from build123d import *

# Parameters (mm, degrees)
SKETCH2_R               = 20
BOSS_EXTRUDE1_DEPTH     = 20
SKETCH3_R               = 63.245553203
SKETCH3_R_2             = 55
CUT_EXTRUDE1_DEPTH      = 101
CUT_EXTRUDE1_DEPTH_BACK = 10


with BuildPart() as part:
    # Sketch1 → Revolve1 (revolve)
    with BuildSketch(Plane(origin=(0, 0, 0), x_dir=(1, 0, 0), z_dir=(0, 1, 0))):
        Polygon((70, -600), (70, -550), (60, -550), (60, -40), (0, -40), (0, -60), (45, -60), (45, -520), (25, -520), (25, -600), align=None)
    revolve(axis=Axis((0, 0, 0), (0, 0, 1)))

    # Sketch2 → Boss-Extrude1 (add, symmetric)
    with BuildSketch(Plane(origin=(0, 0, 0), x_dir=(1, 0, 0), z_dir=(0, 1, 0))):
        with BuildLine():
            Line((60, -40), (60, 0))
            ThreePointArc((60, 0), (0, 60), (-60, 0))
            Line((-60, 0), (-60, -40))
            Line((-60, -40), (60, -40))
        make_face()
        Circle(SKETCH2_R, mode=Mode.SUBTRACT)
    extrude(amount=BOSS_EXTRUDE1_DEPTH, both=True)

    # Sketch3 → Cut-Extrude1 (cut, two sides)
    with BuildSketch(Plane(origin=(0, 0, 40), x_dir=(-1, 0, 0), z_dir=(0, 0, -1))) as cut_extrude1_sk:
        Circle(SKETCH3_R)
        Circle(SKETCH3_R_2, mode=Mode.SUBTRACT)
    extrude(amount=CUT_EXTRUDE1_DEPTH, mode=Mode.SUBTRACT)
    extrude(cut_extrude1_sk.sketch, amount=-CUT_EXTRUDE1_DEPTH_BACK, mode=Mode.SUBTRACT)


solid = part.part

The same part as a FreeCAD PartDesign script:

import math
import FreeCAD as App
import Part
import Sketcher

V = App.Vector

doc = App.newDocument("Part")
params = doc.addObject("Spreadsheet::Sheet", "Params")
for row, (alias, value) in enumerate([
    ("sketch1_width", "10 mm"),
    ("sketch1_width2", "60 mm"),
    ("sketch1_width3", "45 mm"),
    ("sketch1_height", "50 mm"),
    ("sketch1_height2", "510 mm"),
    ("revolution_angle", "360 deg"),
    ("sketch2_diameter", "40 mm"),
    ("sketch2_radius", "60 mm"),
    ("sketch2_height", "40 mm"),
    ("pad1_length", "40 mm"),
    ("sketch3_diameter", "110 mm"),
    ("pocket1_length", "101 mm"),
    ("pocket1_length2", "10 mm"),
], start=1):
    params.set(f"A{row}", alias)
    params.set(f"B{row}", "=" + value)
    params.setAlias(f"B{row}", alias)

body = doc.addObject("PartDesign::Body", "Body")

# Sketch on XZ plane
sketch1 = body.newObject("Sketcher::SketchObject", "Sketch")
sketch1.AttachmentSupport = (doc.getObject("XZ_Plane"), [""])
sketch1.MapMode = "FlatFace"
sketch1.addGeometry([
    Part.LineSegment(V(70, 600, 0), V(70, 550, 0)),  # 0
    Part.LineSegment(V(70, 550, 0), V(60, 550, 0)),  # 1
    Part.LineSegment(V(60, 550, 0), V(60, 40, 0)),  # 2
    Part.LineSegment(V(60, 40, 0), V(0, 40, 0)),  # 3
    Part.LineSegment(V(0, 40, 0), V(0, 60, 0)),  # 4
    Part.LineSegment(V(0, 60, 0), V(45, 60, 0)),  # 5
    Part.LineSegment(V(45, 60, 0), V(45, 520, 0)),  # 6
    Part.LineSegment(V(45, 520, 0), V(25, 520, 0)),  # 7
    Part.LineSegment(V(25, 520, 0), V(25, 600, 0)),  # 8
    Part.LineSegment(V(25, 600, 0), V(70, 600, 0)),  # 9
], False)
sketch1.addConstraint([
    Sketcher.Constraint("Coincident", 0, 2, 1, 1),
    Sketcher.Constraint("Coincident", 1, 2, 2, 1),
    Sketcher.Constraint("Coincident", 2, 2, 3, 1),
    Sketcher.Constraint("Coincident", 3, 2, 4, 1),
    Sketcher.Constraint("Coincident", 4, 2, 5, 1),
    Sketcher.Constraint("Coincident", 5, 2, 6, 1),
    Sketcher.Constraint("Coincident", 6, 2, 7, 1),
    Sketcher.Constraint("Coincident", 7, 2, 8, 1),
    Sketcher.Constraint("Coincident", 8, 2, 9, 1),
    Sketcher.Constraint("Coincident", 9, 2, 0, 1),
    Sketcher.Constraint("Vertical", 0),
    Sketcher.Constraint("Horizontal", 1),
    Sketcher.Constraint("Vertical", 2),
    Sketcher.Constraint("Horizontal", 3),
    Sketcher.Constraint("Vertical", 4),
    Sketcher.Constraint("Horizontal", 5),
    Sketcher.Constraint("Vertical", 6),
    Sketcher.Constraint("Horizontal", 7),
    Sketcher.Constraint("Vertical", 8),
    Sketcher.Constraint("Horizontal", 9),
    Sketcher.Constraint("PointOnObject", 3, 2, -2),
    Sketcher.Constraint("Equal", 5, 9),
    Sketcher.Constraint("Equal", 7, 4),
    Sketcher.Constraint("DistanceX", 1, 2, 1, 1, 10.0),
    Sketcher.Constraint("DistanceX", 3, 2, 3, 1, 60.0),
    Sketcher.Constraint("DistanceX", 5, 1, 5, 2, 45.0),
    Sketcher.Constraint("DistanceY", 0, 2, 0, 1, 50.0),
    Sketcher.Constraint("DistanceY", 2, 2, 2, 1, 510.0),
    Sketcher.Constraint("DistanceY", 6, 1, 6, 2, 460.0),
    Sketcher.Constraint("DistanceY", -1, 1, 0, 2, 550.0),
])
sketch1.setExpression("Constraints[23]", "Params.sketch1_width")
sketch1.setExpression("Constraints[24]", "Params.sketch1_width2")
sketch1.setExpression("Constraints[25]", "Params.sketch1_width3")
sketch1.setExpression("Constraints[26]", "Params.sketch1_height")
sketch1.setExpression("Constraints[27]", "Params.sketch1_height2")
revolution = body.newObject("PartDesign::Revolution", "Revolution")
revolution.Profile = sketch1
revolution.ReferenceAxis = (sketch1, ["V_Axis"])
revolution.setExpression("Angle", "Params.revolution_angle")

# Sketch on XZ plane
sketch2 = body.newObject("Sketcher::SketchObject", "Sketch001")
sketch2.AttachmentSupport = (doc.getObject("XZ_Plane"), [""])
sketch2.MapMode = "FlatFace"
sketch2.addGeometry([
    Part.LineSegment(V(60, 40, 0), V(60, 0, 0)),  # 0
    Part.ArcOfCircle(Part.Circle(V(0, 0, 0), V(0, 0, 1), 60), math.radians(180), math.radians(360)),  # 1
    Part.LineSegment(V(-60, 0, 0), V(-60, 40, 0)),  # 2
    Part.LineSegment(V(-60, 40, 0), V(60, 40, 0)),  # 3
    Part.Circle(V(0, 0, 0), V(0, 0, 1), 20),  # 4
], False)
sketch2.addConstraint([
    Sketcher.Constraint("Tangent", 0, 2, 1, 2),
    Sketcher.Constraint("Tangent", 1, 1, 2, 1),
    Sketcher.Constraint("Coincident", 2, 2, 3, 1),
    Sketcher.Constraint("Coincident", 3, 2, 0, 1),
    Sketcher.Constraint("Vertical", 0),
    Sketcher.Constraint("Vertical", 2),
    Sketcher.Constraint("Horizontal", 3),
    Sketcher.Constraint("Coincident", 1, 3, -1, 1),
    Sketcher.Constraint("Coincident", 4, 3, -1, 1),
    Sketcher.Constraint("Diameter", 4, 40.0),
    Sketcher.Constraint("Radius", 1, 60.0),
    Sketcher.Constraint("DistanceY", 0, 2, 0, 1, 40.0),
])
sketch2.setExpression("Constraints[9]", "Params.sketch2_diameter")
sketch2.setExpression("Constraints[10]", "Params.sketch2_radius")
sketch2.setExpression("Constraints[11]", "Params.sketch2_height")
pad1 = body.newObject("PartDesign::Pad", "Pad")
pad1.Profile = sketch2
pad1.setExpression("Length", "Params.pad1_length")
pad1.Midplane = True

# Sketch on XY plane
sketch3 = body.newObject("Sketcher::SketchObject", "Sketch002")
sketch3.AttachmentSupport = (doc.getObject("XY_Plane"), [""])
sketch3.MapMode = "FlatFace"
sketch3.AttachmentOffset = App.Placement(V(0, 0, 40), App.Rotation())
sketch3.addGeometry([
    Part.Circle(V(0, 0, 0), V(0, 0, 1), 63),
    Part.Circle(V(0, 0, 0), V(0, 0, 1), 55),
], False)
sketch3.addConstraint([
    Sketcher.Constraint("Coincident", 0, 3, -1, 1),
    Sketcher.Constraint("Coincident", 1, 3, -1, 1),
    Sketcher.Constraint("Diameter", 1, 110.0),
    Sketcher.Constraint("Diameter", 0, 126.491106),
])
sketch3.setExpression("Constraints[2]", "Params.sketch3_diameter")
pocket1 = body.newObject("PartDesign::Pocket", "Pocket")
pocket1.Profile = sketch3
pocket1.Type = "TwoLengths"
pocket1.setExpression("Length", "Params.pocket1_length")
pocket1.setExpression("Length2", "Params.pocket1_length2")

doc.recompute()
